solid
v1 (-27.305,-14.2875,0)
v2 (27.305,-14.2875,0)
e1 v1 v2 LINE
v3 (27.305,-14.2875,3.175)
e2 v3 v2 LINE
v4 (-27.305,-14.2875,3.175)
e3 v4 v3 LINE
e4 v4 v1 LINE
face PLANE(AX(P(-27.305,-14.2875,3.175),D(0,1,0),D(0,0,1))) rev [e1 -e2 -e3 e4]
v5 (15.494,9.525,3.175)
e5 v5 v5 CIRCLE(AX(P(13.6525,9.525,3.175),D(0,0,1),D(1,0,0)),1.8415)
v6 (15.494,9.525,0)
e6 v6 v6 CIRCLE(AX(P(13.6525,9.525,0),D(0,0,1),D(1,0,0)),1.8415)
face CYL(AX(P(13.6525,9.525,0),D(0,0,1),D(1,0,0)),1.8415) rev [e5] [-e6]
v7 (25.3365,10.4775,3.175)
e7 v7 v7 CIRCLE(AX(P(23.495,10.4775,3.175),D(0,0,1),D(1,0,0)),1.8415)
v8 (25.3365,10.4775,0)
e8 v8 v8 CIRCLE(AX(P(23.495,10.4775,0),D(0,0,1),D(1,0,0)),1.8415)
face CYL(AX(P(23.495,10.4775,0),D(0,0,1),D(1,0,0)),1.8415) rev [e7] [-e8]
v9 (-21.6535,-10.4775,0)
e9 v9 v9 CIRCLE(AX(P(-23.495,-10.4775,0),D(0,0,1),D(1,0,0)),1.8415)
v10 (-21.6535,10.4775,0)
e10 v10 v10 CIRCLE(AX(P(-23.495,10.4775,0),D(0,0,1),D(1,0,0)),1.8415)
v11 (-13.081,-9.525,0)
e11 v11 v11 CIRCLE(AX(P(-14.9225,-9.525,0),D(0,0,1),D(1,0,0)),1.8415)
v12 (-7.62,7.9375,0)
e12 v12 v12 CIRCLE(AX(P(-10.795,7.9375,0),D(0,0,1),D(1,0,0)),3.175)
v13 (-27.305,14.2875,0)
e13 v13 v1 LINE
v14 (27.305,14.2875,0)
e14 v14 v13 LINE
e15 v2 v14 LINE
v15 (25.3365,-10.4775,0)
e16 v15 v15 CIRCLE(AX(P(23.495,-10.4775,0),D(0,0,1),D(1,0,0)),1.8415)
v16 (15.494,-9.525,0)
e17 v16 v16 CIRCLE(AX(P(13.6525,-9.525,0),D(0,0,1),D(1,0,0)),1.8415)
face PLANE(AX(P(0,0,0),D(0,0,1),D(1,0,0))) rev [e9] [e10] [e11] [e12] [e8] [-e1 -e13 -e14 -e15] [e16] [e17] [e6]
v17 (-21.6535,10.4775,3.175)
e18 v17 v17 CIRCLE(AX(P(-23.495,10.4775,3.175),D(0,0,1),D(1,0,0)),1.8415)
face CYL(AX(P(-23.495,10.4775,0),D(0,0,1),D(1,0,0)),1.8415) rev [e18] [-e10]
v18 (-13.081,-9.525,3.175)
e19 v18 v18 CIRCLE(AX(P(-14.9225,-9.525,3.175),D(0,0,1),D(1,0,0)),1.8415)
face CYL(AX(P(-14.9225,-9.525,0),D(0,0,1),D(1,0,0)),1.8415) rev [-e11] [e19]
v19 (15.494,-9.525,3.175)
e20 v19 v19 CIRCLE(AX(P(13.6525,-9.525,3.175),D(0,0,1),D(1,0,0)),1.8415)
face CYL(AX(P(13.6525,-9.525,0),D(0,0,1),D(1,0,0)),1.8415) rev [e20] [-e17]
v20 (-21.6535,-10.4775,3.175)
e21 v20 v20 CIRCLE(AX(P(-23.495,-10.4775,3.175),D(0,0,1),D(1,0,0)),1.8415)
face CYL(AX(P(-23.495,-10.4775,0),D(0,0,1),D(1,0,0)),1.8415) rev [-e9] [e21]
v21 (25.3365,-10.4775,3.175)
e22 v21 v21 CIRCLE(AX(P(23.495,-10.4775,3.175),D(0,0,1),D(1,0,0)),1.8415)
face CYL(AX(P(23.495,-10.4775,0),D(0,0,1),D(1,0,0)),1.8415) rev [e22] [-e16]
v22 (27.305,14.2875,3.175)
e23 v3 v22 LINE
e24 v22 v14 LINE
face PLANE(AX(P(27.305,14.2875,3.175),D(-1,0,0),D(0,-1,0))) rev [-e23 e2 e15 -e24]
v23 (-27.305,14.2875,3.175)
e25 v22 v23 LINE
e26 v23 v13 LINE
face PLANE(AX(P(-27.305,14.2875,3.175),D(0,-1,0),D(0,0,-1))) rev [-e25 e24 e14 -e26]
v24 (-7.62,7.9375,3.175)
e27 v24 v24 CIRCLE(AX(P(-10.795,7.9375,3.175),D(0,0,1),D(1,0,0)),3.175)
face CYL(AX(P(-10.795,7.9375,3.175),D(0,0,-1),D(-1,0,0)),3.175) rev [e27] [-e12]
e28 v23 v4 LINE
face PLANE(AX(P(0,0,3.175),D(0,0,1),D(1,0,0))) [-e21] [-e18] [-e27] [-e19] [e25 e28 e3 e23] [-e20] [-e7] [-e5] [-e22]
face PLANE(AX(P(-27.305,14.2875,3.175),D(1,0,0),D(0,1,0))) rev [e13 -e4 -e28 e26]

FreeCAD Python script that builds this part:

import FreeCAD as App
import Part
import Sketcher
from FreeCAD import Vector
Q = App.Units.Quantity


def add_polygon(sketch, points):
    """Adds a closed chain of lines whose ends are joined by coincident constraints."""
    first, n = sketch.GeometryCount, len(points)
    for a, b in zip(points, points[1:] + points[:1]):
        sketch.addGeometry(Part.LineSegment(App.Vector(*a, 0), App.Vector(*b, 0)), False)
    for i in range(n):
        sketch.addConstraint(Sketcher.Constraint("Coincident", first + i, 2, first + (i + 1) % n, 1))

doc = App.newDocument("Part")
params = doc.addObject("Spreadsheet::Sheet", "Params")
for row, (alias, value) in enumerate([
    ("sketch1_diameter", "0.25 in"),
    ("sketch1_width", "2.15 in"),
    ("sketch1_height", "1.125 in"),
    ("pad1_length", "0.125 in"),
    ("sketch2_diameter", "0.145 in"),
    ("sketch3_diameter", "0.145 in"),
    ("sketch4_diameter", "0.145 in"),
], start=1):
    params.set(f"A{row}", alias)
    params.set(f"B{row}", "=" + value)
    params.setAlias(f"B{row}", alias)

body = doc.addObject("PartDesign::Body", "Body")

# Sketch on XY plane
sketch1 = body.newObject("Sketcher::SketchObject", "Sketch")
sketch1.AttachmentSupport = (doc.getObject("XY_Plane"), [""])
sketch1.MapMode = "FlatFace"
add_polygon(sketch1, [(-27.3, 14.3), (-27.3, -14.3), (27.3, -14.3), (27.3, 14.3)])  # lines 0-3
sketch1.addGeometry(Part.Circle(Vector(-10.8, 7.9, 0), Vector(0, 0, 1), 3.2), False)  # 4
sketch1.addConstraint(Sketcher.Constraint("Vertical", 0))
sketch1.addConstraint(Sketcher.Constraint("Horizontal", 1))
sketch1.addConstraint(Sketcher.Constraint("Vertical", 2))
sketch1.addConstraint(Sketcher.Constraint("Horizontal", 3))
sketch1.addConstraint(Sketcher.Constraint("Symmetric", 0, 2, 2, 2, -1, 1))
sketch1.addConstraint(Sketcher.Constraint("Diameter", 4, Q("0.25 in")))
sketch1.addConstraint(Sketcher.Constraint("DistanceX", 1, 1, 1, 2, Q("2.15 in")))
sketch1.addConstraint(Sketcher.Constraint("DistanceX", 4, 3, 1, 2, Q("1.5 in")))
sketch1.addConstraint(Sketcher.Constraint("DistanceY", 0, 2, 0, 1, Q("1.125 in")))
sketch1.addConstraint(Sketcher.Constraint("DistanceY", 4, 3, 2, 2, Q("0.25 in")))
sketch1.setExpression("Constraints[9]", "Params.sketch1_diameter")
sketch1.setExpression("Constraints[10]", "Params.sketch1_width")
sketch1.setExpression("Constraints[12]", "Params.sketch1_height")
pad1 = body.newObject("PartDesign::Pad", "Pad")
pad1.Profile = sketch1
pad1.setExpression("Length", "Params.pad1_length")

# Sketch on XY plane
sketch2 = body.newObject("Sketcher::SketchObject", "Sketch001")
sketch2.AttachmentSupport = (doc.getObject("XY_Plane"), [""])
sketch2.MapMode = "FlatFace"
sketch2.AttachmentOffset = App.Placement(Vector(0, 0, 0.125 * 25.4), App.Rotation())
sketch2.addGeometry(Part.Circle(Vector(-23.5, 10.5, 0), Vector(0, 0, 1), 1.8), False)
sketch2.addGeometry(Part.Circle(Vector(-23.5, -10.5, 0), Vector(0, 0, 1), 1.8), False)
sketch2.addGeometry(Part.Circle(Vector(23.5, -10.5, 0), Vector(0, 0, 1), 1.8), False)
sketch2.addGeometry(Part.Circle(Vector(23.5, 10.5, 0), Vector(0, 0, 1), 1.8), False)
sketch2.addConstraint(Sketcher.Constraint("Equal", 0, 1))
sketch2.addConstraint(Sketcher.Constraint("Equal", 1, 2))
sketch2.addConstraint(Sketcher.Constraint("Equal", 2, 3))
sketch2.addConstraint(Sketcher.Constraint("Symmetric", 0, 3, 2, 3, -1, 1))
sketch2.addConstraint(Sketcher.Constraint("Symmetric", 1, 3, 3, 3, -1, 1))
sketch2.addConstraint(Sketcher.Constraint("Symmetric", 1, 3, 2, 3, -2))
sketch2.addConstraint(Sketcher.Constraint("Diameter", 0, Q("0.145 in")))
sketch2.addConstraint(Sketcher.Constraint("DistanceX", 1, 3, 2, 3, Q("1.85 in")))
sketch2.addConstraint(Sketcher.Constraint("DistanceY", 1, 3, 0, 3, Q("0.825 in")))
sketch2.setExpression("Constraints[6]", "Params.sketch2_diameter")
pocket1 = body.newObject("PartDesign::Pocket", "Pocket")
pocket1.Profile = sketch2
pocket1.Type = "ThroughAll"

# Sketch on XY plane
sketch3 = body.newObject("Sketcher::SketchObject", "Sketch002")
sketch3.AttachmentSupport = (doc.getObject("XY_Plane"), [""])
sketch3.MapMode = "FlatFace"
sketch3.AttachmentOffset = App.Placement(Vector(0, 0, 0.125 * 25.4), App.Rotation())
sketch3.addGeometry(Part.Circle(Vector(13.7, 9.5, 0), Vector(0, 0, 1), 1.8), False)
sketch3.addConstraint(Sketcher.Constraint("Diameter", 0, Q("0.145 in")))
sketch3.addConstraint(Sketcher.Constraint("DistanceY", -1, 1, 0, 3, Q("0.375 in")))
sketch3.addConstraint(Sketcher.Constraint("DistanceX", -1, 1, 0, 3, Q("0.5375 in")))
sketch3.setExpression("Constraints[0]", "Params.sketch3_diameter")
pocket2 = body.newObject("PartDesign::Pocket", "Pocket001")
pocket2.Profile = sketch3
pocket2.Type = "ThroughAll"

# Sketch on XY plane
sketch4 = body.newObject("Sketcher::SketchObject", "Sketch003")
sketch4.AttachmentSupport = (doc.getObject("XY_Plane"), [""])
sketch4.MapMode = "FlatFace"
sketch4.AttachmentOffset = App.Placement(Vector(0, 0, 0.125 * 25.4), App.Rotation())
sketch4.addGeometry(Part.Circle(Vector(-14.9, -9.5, 0), Vector(0, 0, 1), 1.8), False)
sketch4.addGeometry(Part.Circle(Vector(13.7, -9.5, 0), Vector(0, 0, 1), 1.8), False)
sketch4.addConstraint(Sketcher.Constraint("Equal", 0, 1))
sketch4.addConstraint(Sketcher.Constraint("Horizontal", 0, 3, 1, 3))
sketch4.addConstraint(Sketcher.Constraint("Diameter", 0, Q("0.145 in")))
sketch4.addConstraint(Sketcher.Constraint("DistanceY", 0, 3, -1, 1, Q("0.375 in")))
sketch4.addConstraint(Sketcher.Constraint("DistanceX", 0, 3, 1, 3, Q("1.125 in")))
sketch4.addConstraint(Sketcher.Constraint("DistanceX", 0, 3, -1, 1, Q("0.5875 in")))
sketch4.setExpression("Constraints[2]", "Params.sketch4_diameter")
pocket3 = body.newObject("PartDesign::Pocket", "Pocket002")
pocket3.Profile = sketch4
pocket3.Type = "ThroughAll"

doc.recompute()
